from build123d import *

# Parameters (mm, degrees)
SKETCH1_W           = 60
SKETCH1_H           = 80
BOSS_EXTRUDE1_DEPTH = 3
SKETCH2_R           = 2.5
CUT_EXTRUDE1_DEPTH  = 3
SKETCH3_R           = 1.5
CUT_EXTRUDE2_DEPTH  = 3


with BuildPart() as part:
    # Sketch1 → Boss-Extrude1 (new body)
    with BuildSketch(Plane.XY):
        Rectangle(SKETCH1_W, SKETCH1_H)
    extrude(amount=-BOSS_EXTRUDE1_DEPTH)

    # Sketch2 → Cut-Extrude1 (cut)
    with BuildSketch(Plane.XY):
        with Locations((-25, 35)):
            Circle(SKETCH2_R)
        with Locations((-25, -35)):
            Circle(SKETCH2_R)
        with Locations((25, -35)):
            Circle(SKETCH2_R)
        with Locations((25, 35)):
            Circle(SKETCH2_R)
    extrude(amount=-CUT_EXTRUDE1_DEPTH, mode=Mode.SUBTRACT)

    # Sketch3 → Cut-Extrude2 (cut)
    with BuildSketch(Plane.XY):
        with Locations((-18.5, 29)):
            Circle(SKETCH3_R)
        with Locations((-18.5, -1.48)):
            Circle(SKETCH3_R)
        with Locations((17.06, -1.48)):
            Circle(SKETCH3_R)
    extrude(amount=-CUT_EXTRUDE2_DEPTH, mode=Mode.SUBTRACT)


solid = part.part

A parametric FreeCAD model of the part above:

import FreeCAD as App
import Part
import Sketcher

V = App.Vector


def add_polygon(sketch, points):
    """Adds a closed chain of lines whose ends are joined by coincident constraints."""
    first, n = sketch.GeometryCount, len(points)
    for a, b in zip(points, points[1:] + points[:1]):
        sketch.addGeometry(Part.LineSegment(App.Vector(*a, 0), App.Vector(*b, 0)), False)
    for i in range(n):
        sketch.addConstraint(Sketcher.Constraint("Coincident", first + i, 2, first + (i + 1) % n, 1))

doc = App.newDocument("Part")
params = doc.addObject("Spreadsheet::Sheet", "Params")
for row, (alias, value) in enumerate([
    ("sketch1_width", "60 mm"),
    ("sketch1_height", "80 mm"),
    ("pad1_length", "3 mm"),
    ("sketch2_diameter", "5 mm"),
    ("pocket1_length", "3 mm"),
    ("sketch3_diameter", "3 mm"),
    ("pocket2_length", "3 mm"),
], start=1):
    params.set(f"A{row}", alias)
    params.set(f"B{row}", "=" + value)
    params.setAlias(f"B{row}", alias)

body = doc.addObject("PartDesign::Body", "Body")

sketch1 = doc.addObject("Sketcher::SketchObject", "Sketch")
body.addObject(sketch1)
sketch1.AttachmentSupport = (doc.XY_Plane, [""])
sketch1.MapMode = "FlatFace"
add_polygon(sketch1, [(-30, 40), (-30, -40), (30, -40), (30, 40)])
sketch1.addConstraint(Sketcher.Constraint("Vertical", 0))
sketch1.addConstraint(Sketcher.Constraint("Horizontal", 1))
sketch1.addConstraint(Sketcher.Constraint("Vertical", 2))
sketch1.addConstraint(Sketcher.Constraint("Horizontal", 3))
sketch1.addConstraint(Sketcher.Constraint("Symmetric", 0, 2, 2, 2, -1, 1))
sketch1.addConstraint(Sketcher.Constraint("DistanceX", 1, 1, 1, 2, 60.0))
sketch1.addConstraint(Sketcher.Constraint("DistanceY", 0, 2, 0, 1, 80.0))
sketch1.setExpression("Constraints[9]", "Params.sketch1_width")
sketch1.setExpression("Constraints[10]", "Params.sketch1_height")
pad1 = doc.addObject("PartDesign::Pad", "Pad")
body.addObject(pad1)
pad1.Profile = sketch1
pad1.setExpression("Length", "Params.pad1_length")
pad1.Reversed = True

sketch2 = doc.addObject("Sketcher::SketchObject", "Sketch001")
body.addObject(sketch2)
sketch2.AttachmentSupport = (doc.XY_Plane, [""])
sketch2.MapMode = "FlatFace"
sketch2.addGeometry(Part.Circle(V(-25, 35, 0), V(0, 0, 1), 2.5), False)
sketch2.addGeometry(Part.Circle(V(-25, -35, 0), V(0, 0, 1), 2.5), False)
sketch2.addGeometry(Part.Circle(V(25, -35, 0), V(0, 0, 1), 2.5), False)
sketch2.addGeometry(Part.Circle(V(25, 35, 0), V(0, 0, 1), 2.5), False)
sketch2.addConstraint(Sketcher.Constraint("Equal", 0, 1))
sketch2.addConstraint(Sketcher.Constraint("Equal", 1, 2))
sketch2.addConstraint(Sketcher.Constraint("Equal", 2, 3))
sketch2.addConstraint(Sketcher.Constraint("Symmetric", 0, 3, 2, 3, -1, 1))
sketch2.addConstraint(Sketcher.Constraint("Symmetric", 1, 3, 3, 3, -1, 1))
sketch2.addConstraint(Sketcher.Constraint("Symmetric", 1, 3, 2, 3, -2))
sketch2.addConstraint(Sketcher.Constraint("Diameter", 0, 5.0))
sketch2.addConstraint(Sketcher.Constraint("DistanceX", 0, 3, -1, 1, 25.0))
sketch2.addConstraint(Sketcher.Constraint("DistanceY", -1, 1, 0, 3, 35.0))
sketch2.setExpression("Constraints[6]", "Params.sketch2_diameter")
pocket1 = doc.addObject("PartDesign::Pocket", "Pocket")
body.addObject(pocket1)
pocket1.Profile = sketch2
pocket1.setExpression("Length", "Params.pocket1_length")

sketch3 = doc.addObject("Sketcher::SketchObject", "Sketch002")
body.addObject(sketch3)
sketch3.AttachmentSupport = (doc.XY_Plane, [""])
sketch3.MapMode = "FlatFace"
sketch3.addGeometry(Part.Circle(V(-18.5, 29, 0), V(0, 0, 1), 1.5), False)
sketch3.addGeometry(Part.Circle(V(-18.5, -1.48, 0), V(0, 0, 1), 1.5), False)
sketch3.addGeometry(Part.Circle(V(17.06, -1.48, 0), V(0, 0, 1), 1.5), False)
sketch3.addConstraint(Sketcher.Constraint("Equal", 0, 1))
sketch3.addConstraint(Sketcher.Constraint("Equal", 1, 2))
sketch3.addConstraint(Sketcher.Constraint("Horizontal", 1, 3, 2, 3))
sketch3.addConstraint(Sketcher.Constraint("Vertical", 0, 3, 1, 3))
sketch3.addConstraint(Sketcher.Constraint("Diameter", 0, 3.0))
sketch3.addConstraint(Sketcher.Constraint("DistanceY", -1, 1, 0, 3, 29.0))
sketch3.addConstraint(Sketcher.Constraint("DistanceX", 0, 3, -1, 1, 18.5))
sketch3.addConstraint(Sketcher.Constraint("DistanceY", 1, 3, -1, 1, 1.48))
sketch3.addConstraint(Sketcher.Constraint("DistanceX", -1, 1, 2, 3, 17.06))
sketch3.setExpression("Constraints[4]", "Params.sketch3_diameter")
pocket2 = doc.addObject("PartDesign::Pocket", "Pocket001")
body.addObject(pocket2)
pocket2.Profile = sketch3
pocket2.setExpression("Length", "Params.pocket2_length")

doc.recompute()
